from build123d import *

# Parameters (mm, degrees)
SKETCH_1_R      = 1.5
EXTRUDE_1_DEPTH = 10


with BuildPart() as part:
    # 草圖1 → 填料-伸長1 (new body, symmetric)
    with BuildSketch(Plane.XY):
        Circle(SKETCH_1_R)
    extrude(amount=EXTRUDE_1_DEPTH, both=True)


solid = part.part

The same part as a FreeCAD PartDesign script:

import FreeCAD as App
import Part
import Sketcher
Q = App.Units.Quantity

doc = App.newDocument("Part")
body = doc.addObject("PartDesign::Body", "Body")

sketch1 = body.newObject("Sketcher::SketchObject", "Sketch")
sketch1.AttachmentSupport = (doc.getObject("XY_Plane"), [""])
sketch1.MapMode = "FlatFace"
sketch1.addGeometry(Part.Circle(App.Vector(0, 0, 0), App.Vector(0, 0, 1), 1.5), False)
sketch1.addConstraint([
    Sketcher.Constraint("Coincident", 0, 3, -1, 1),
    Sketcher.Constraint("Diameter", 0, Q("3 mm")),
])
pad1 = body.newObject("PartDesign::Pad", "Pad")
pad1.Profile = sketch1
pad1.Length = 20
pad1.Midplane = True

doc.recompute()
